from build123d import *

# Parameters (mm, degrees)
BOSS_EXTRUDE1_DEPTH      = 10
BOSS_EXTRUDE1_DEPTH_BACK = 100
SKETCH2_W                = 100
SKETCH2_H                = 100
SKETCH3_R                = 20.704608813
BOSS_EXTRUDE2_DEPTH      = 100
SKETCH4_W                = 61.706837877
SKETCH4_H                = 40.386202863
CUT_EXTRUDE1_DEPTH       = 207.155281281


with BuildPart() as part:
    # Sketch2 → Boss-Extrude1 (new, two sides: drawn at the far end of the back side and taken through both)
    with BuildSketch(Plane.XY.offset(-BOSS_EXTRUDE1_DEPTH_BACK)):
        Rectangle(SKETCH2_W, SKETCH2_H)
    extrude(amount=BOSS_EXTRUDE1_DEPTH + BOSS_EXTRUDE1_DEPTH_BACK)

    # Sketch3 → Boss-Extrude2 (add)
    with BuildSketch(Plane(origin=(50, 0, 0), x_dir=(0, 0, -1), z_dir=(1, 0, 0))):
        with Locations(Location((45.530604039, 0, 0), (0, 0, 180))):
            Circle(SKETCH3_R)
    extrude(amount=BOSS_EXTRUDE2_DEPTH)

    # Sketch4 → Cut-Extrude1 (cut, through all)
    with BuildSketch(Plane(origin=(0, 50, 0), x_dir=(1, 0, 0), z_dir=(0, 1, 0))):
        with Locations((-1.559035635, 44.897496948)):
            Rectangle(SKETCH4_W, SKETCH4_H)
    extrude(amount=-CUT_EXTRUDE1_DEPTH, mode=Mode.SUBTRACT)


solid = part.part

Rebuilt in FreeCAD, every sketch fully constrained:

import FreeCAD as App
import Part
import Sketcher
Q = App.Units.Quantity

doc = App.newDocument("Part")
body = doc.addObject("PartDesign::Body", "Body")

# Sketch on XY plane
sketch1 = body.newObject("Sketcher::SketchObject", "Sketch")
sketch1.AttachmentSupport = (doc.getObject("XY_Plane"), [""])
sketch1.MapMode = "FlatFace"
sketch1.addGeometry([
    Part.LineSegment(App.Vector(-50, 50, 0), App.Vector(-50, -50, 0)),
    Part.LineSegment(App.Vector(-50, -50, 0), App.Vector(50, -50, 0)),
    Part.LineSegment(App.Vector(50, -50, 0), App.Vector(50, 50, 0)),
    Part.LineSegment(App.Vector(50, 50, 0), App.Vector(-50, 50, 0)),
], False)
sketch1.addConstraint([
    Sketcher.Constraint("Coincident", 0, 2, 1, 1),
    Sketcher.Constraint("Coincident", 1, 2, 2, 1),
    Sketcher.Constraint("Coincident", 2, 2, 3, 1),
    Sketcher.Constraint("Coincident", 3, 2, 0, 1),
    Sketcher.Constraint("Vertical", 0),
    Sketcher.Constraint("Horizontal", 1),
    Sketcher.Constraint("Vertical", 2),
    Sketcher.Constraint("Horizontal", 3),
    Sketcher.Constraint("Symmetric", 0, 2, 2, 2, -1, 1),
    Sketcher.Constraint("Equal", 3, 0),
    Sketcher.Constraint("DistanceX", 1, 1, 1, 2, Q("100 mm")),
])
pad1 = body.newObject("PartDesign::Pad", "Pad")
pad1.Profile = sketch1
pad1.Type = "TwoLengths"
pad1.Length = 10
pad1.Length2 = 100

# Sketch on YZ plane
sketch2 = body.newObject("Sketcher::SketchObject", "Sketch001")
sketch2.AttachmentSupport = (doc.getObject("YZ_Plane"), [""])
sketch2.MapMode = "FlatFace"
sketch2.AttachmentOffset = App.Placement(App.Vector(0, 0, 50), App.Rotation())
sketch2.addGeometry(Part.Circle(App.Vector(0, -46, 0), App.Vector(0, 0, 1), 21), False)
sketch2.addConstraint([
    Sketcher.Constraint("PointOnObject", 0, 3, -2),
    Sketcher.Constraint("Diameter", 0, Q("41.409218 mm")),
    Sketcher.Constraint("DistanceY", 0, 3, -1, 1, Q("45.530604 mm")),
])
pad2 = body.newObject("PartDesign::Pad", "Pad001")
pad2.Profile = sketch2
pad2.Length = 100

# Sketch on XZ plane
sketch3 = body.newObject("Sketcher::SketchObject", "Sketch002")
sketch3.AttachmentSupport = (doc.getObject("XZ_Plane"), [""])
sketch3.MapMode = "FlatFace"
sketch3.AttachmentOffset = App.Placement(App.Vector(0, 0, -50), App.Rotation())
sketch3.addGeometry([
    Part.LineSegment(App.Vector(-32, -65, 0), App.Vector(-32, -25, 0)),
    Part.LineSegment(App.Vector(-32, -25, 0), App.Vector(29, -25, 0)),
    Part.LineSegment(App.Vector(29, -25, 0), App.Vector(29, -65, 0)),
    Part.LineSegment(App.Vector(29, -65, 0), App.Vector(-32, -65, 0)),
], False)
sketch3.addConstraint([
    Sketcher.Constraint("Coincident", 0, 2, 1, 1),
    Sketcher.Constraint("Coincident", 1, 2, 2, 1),
    Sketcher.Constraint("Coincident", 2, 2, 3, 1),
    Sketcher.Constraint("Coincident", 3, 2, 0, 1),
    Sketcher.Constraint("Vertical", 0),
    Sketcher.Constraint("Horizontal", 1),
    Sketcher.Constraint("Vertical", 2),
    Sketcher.Constraint("Horizontal", 3),
    Sketcher.Constraint("DistanceY", 2, 2, -1, 1, Q("65.090598 mm")),
    Sketcher.Constraint("DistanceX", 1, 1, 1, 2, Q("61.706838 mm")),
    Sketcher.Constraint("DistanceY", 0, 1, 0, 2, Q("40.386203 mm")),
    Sketcher.Constraint("DistanceX", 0, 2, -1, 1, Q("32.412455 mm")),
])
pocket1 = body.newObject("PartDesign::Pocket", "Pocket")
pocket1.Profile = sketch3
pocket1.Type = "ThroughAll"
pocket1.Reversed = True

doc.recompute()
